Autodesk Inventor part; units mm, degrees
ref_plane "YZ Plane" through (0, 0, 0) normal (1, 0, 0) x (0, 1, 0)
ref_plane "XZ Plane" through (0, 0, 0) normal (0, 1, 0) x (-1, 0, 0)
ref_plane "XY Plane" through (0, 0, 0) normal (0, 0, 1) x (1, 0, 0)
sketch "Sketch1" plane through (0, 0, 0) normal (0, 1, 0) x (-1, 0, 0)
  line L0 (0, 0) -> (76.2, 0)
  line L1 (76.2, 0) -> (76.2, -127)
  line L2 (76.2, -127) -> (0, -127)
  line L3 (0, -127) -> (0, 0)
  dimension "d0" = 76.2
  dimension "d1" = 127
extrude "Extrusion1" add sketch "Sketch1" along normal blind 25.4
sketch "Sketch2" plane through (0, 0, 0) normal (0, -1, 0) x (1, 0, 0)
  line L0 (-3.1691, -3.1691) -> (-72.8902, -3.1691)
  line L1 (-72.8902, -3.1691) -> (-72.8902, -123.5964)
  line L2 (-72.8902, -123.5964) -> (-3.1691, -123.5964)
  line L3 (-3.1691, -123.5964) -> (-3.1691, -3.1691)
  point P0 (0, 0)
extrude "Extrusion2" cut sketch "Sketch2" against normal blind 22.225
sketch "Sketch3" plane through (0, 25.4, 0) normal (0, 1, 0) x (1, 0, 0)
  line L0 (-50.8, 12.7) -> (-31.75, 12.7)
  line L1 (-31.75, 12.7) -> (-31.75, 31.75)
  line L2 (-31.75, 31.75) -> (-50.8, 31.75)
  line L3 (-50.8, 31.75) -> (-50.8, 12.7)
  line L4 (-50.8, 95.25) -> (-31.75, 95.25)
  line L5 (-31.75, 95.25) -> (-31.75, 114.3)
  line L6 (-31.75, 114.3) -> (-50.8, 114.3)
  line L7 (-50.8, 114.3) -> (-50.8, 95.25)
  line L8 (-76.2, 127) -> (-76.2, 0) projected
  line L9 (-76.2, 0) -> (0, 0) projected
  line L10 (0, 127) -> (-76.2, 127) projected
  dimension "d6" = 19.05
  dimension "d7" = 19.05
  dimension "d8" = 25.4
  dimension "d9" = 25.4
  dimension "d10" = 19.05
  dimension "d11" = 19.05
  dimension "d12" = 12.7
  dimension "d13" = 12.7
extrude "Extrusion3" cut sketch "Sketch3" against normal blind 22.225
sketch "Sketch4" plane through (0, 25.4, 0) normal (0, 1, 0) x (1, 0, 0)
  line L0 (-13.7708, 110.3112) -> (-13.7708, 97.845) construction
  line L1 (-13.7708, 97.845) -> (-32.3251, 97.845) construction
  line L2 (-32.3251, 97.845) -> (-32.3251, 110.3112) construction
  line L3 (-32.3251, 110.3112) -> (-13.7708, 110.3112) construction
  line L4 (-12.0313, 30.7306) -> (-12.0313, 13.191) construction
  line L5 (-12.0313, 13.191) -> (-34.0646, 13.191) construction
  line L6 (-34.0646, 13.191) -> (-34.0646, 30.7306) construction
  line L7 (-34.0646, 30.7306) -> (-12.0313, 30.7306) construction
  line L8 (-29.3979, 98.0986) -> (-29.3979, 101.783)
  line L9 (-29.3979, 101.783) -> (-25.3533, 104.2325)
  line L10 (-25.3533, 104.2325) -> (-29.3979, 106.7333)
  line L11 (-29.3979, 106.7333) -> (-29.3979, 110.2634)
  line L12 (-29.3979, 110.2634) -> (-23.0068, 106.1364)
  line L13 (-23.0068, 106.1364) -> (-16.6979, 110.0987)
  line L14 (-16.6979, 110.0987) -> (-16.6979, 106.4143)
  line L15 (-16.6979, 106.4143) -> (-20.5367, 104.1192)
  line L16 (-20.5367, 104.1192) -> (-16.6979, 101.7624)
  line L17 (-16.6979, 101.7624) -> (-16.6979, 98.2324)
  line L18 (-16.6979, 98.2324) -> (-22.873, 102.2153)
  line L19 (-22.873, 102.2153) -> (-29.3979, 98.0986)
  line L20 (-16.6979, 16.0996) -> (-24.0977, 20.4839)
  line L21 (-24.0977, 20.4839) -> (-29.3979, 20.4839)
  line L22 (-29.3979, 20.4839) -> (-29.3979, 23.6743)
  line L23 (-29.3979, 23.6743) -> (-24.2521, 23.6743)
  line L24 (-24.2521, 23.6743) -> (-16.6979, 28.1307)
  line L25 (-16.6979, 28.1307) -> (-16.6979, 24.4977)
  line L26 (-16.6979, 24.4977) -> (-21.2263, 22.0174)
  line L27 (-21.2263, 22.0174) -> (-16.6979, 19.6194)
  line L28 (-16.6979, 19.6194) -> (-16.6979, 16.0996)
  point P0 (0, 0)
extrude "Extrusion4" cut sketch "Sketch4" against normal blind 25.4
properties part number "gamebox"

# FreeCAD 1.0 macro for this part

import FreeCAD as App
import Part
import Sketcher
Q = App.Units.Quantity


def add_polygon(sketch, points):
    """Adds a closed chain of lines whose ends are joined by coincident constraints."""
    first, n = sketch.GeometryCount, len(points)
    for a, b in zip(points, points[1:] + points[:1]):
        sketch.addGeometry(Part.LineSegment(App.Vector(*a, 0), App.Vector(*b, 0)), False)
    for i in range(n):
        sketch.addConstraint(Sketcher.Constraint("Coincident", first + i, 2, first + (i + 1) % n, 1))

doc = App.newDocument("Part")
body = doc.addObject("PartDesign::Body", "Body")

# Sketch on XZ plane
sketch1 = body.newObject("Sketcher::SketchObject", "Sketch")
sketch1.AttachmentSupport = (doc.getObject("XZ_Plane"), [""])
sketch1.MapMode = "FlatFace"
add_polygon(sketch1, [(-76, 0), (0, 0), (0, -127), (-76, -127)])  # lines 0-3
sketch1.addConstraint([
    Sketcher.Constraint("Horizontal", 0),
    Sketcher.Constraint("Vertical", 1),
    Sketcher.Constraint("Horizontal", 2),
    Sketcher.Constraint("Vertical", 3),
    Sketcher.Constraint("Coincident", 0, 2, -1, 1),
    Sketcher.Constraint("DistanceX", 0, 1, 0, 2, Q("3 in")),
    Sketcher.Constraint("DistanceY", 1, 2, 1, 1, Q("5 in")),
])
pad1 = body.newObject("PartDesign::Pad", "Pad")
pad1.Profile = sketch1
pad1.Length = Q("1 in")
pad1.Reversed = True

# Sketch on XZ plane
sketch2 = body.newObject("Sketcher::SketchObject", "Sketch001")
sketch2.AttachmentSupport = (doc.getObject("XZ_Plane"), [""])
sketch2.MapMode = "FlatFace"
add_polygon(sketch2, [(-3, -124), (-3, -3), (-73, -3), (-73, -124)])  # lines 0-3
sketch2.addConstraint([
    Sketcher.Constraint("Vertical", 0),
    Sketcher.Constraint("Horizontal", 1),
    Sketcher.Constraint("Vertical", 2),
    Sketcher.Constraint("Horizontal", 3),
    Sketcher.Constraint("DistanceY", 2, 2, -1, 1, Q("4.866 in")),
    Sketcher.Constraint("DistanceX", 1, 2, 1, 1, 69.721),
    Sketcher.Constraint("DistanceY", 0, 1, 0, 2, 120.4273),
    Sketcher.Constraint("DistanceX", 1, 2, -1, 1, Q("2.8697 in")),
])
pocket1 = body.newObject("PartDesign::Pocket", "Pocket")
pocket1.Profile = sketch2
pocket1.Length = Q("0.875 in")

# Sketch on XZ plane
sketch3 = body.newObject("Sketcher::SketchObject", "Sketch002")
sketch3.AttachmentSupport = (doc.getObject("XZ_Plane"), [""])
sketch3.MapMode = "FlatFace"
sketch3.AttachmentOffset = App.Placement(App.Vector(0, 0, -1 * 25.4), App.Rotation())
add_polygon(sketch3, [(-51, -32), (-51, -13), (-32, -13), (-32, -32)])  # lines 0-3
add_polygon(sketch3, [(-51, -114), (-51, -95), (-32, -95), (-32, -114)])  # lines 4-7
sketch3.addConstraint([
    Sketcher.Constraint("Vertical", 0),
    Sketcher.Constraint("Horizontal", 1),
    Sketcher.Constraint("Vertical", 2),
    Sketcher.Constraint("Horizontal", 3),
    Sketcher.Constraint("Vertical", 4),
    Sketcher.Constraint("Horizontal", 5),
    Sketcher.Constraint("Vertical", 6),
    Sketcher.Constraint("Horizontal", 7),
    Sketcher.Constraint("Vertical", 3, 2, 4, 2),
    Sketcher.Constraint("Vertical", 2, 2, 5, 2),
    Sketcher.Constraint("Equal", 7, 0),
    Sketcher.Constraint("Equal", 2, 4),
    Sketcher.Constraint("DistanceX", 1, 1, 1, 2, Q("0.75 in")),
    Sketcher.Constraint("DistanceY", 0, 2, -1, 1, Q("0.5 in")),
    Sketcher.Constraint("DistanceX", 0, 2, -1, 1, Q("2 in")),
    Sketcher.Constraint("DistanceY", 6, 2, 1, 2, Q("4 in")),
])
pocket2 = body.newObject("PartDesign::Pocket", "Pocket001")
pocket2.Profile = sketch3
pocket2.Length = Q("0.875 in")
pocket2.Reversed = True

# Sketch on XZ plane
sketch4 = body.newObject("Sketcher::SketchObject", "Sketch003")
sketch4.AttachmentSupport = (doc.getObject("XZ_Plane"), [""])
sketch4.MapMode = "FlatFace"
sketch4.AttachmentOffset = App.Placement(App.Vector(0, 0, -1 * 25.4), App.Rotation())
add_polygon(sketch4, [(-29.4, -101.8), (-29.4, -98.1), (-22.9, -102.2), (-16.7, -98.2), (-16.7, -101.8), (-20.5, -104.1), (-16.7, -106.4), (-16.7, -110.1), (-23, -106.1), (-29.4, -110.3), (-29.4, -106.7), (-25.4, -104.2)])  # lines 0-11
add_polygon(sketch4, [(-24.1, -20.5), (-16.7, -16.1), (-16.7, -19.6), (-21.2, -22), (-16.7, -24.5), (-16.7, -28.1), (-24.3, -23.7), (-29.4, -23.7), (-29.4, -20.5)])  # lines 12-20
sketch4.addConstraint([
    Sketcher.Constraint("Vertical", 0),
    Sketcher.Constraint("Vertical", 3),
    Sketcher.Constraint("Vertical", 6),
    Sketcher.Constraint("Vertical", 9),
    Sketcher.Constraint("Vertical", 13),
    Sketcher.Constraint("Vertical", 16),
    Sketcher.Constraint("Horizontal", 18),
    Sketcher.Constraint("Vertical", 19),
    Sketcher.Constraint("Horizontal", 20),
    Sketcher.Constraint("Vertical", 3, 2, 5, 2),
    Sketcher.Constraint("Vertical", 0, 2, 8, 2),
    Sketcher.Constraint("Vertical", 6, 2, 12, 2),
    Sketcher.Constraint("Vertical", 13, 2, 15, 2),
    Sketcher.Constraint("Vertical", 11, 2, 18, 2),
    Sketcher.Constraint("Equal", 0, 6),
    Sketcher.Constraint("Equal", 3, 9),
    Sketcher.Constraint("Angle", 11, Q("148.8 deg")),
    Sketcher.Constraint("DistanceX", 0, 2, 2, 2, Q("0.5 in")),
    Sketcher.Constraint("Angle", 7, Q("147.8692 deg")),
    Sketcher.Constraint("Angle", 15, Q("-28.7104 deg")),
    Sketcher.Constraint("DistanceX", 18, 2, 18, 1, Q("0.2026 in")),
    Sketcher.Constraint("DistanceY", 19, 1, 19, 2, Q("0.1256 in")),
    Sketcher.Constraint("DistanceY", 6, 2, 7, 2, Q("0.156 in")),
    Sketcher.Constraint("DistanceY", 2, 2, 13, 2, Q("3.095 in")),
    Sketcher.Constraint("Distance", 2, Q("0.2893 in")),
    Sketcher.Constraint("Distance", 17, Q("0.3453 in")),
    Sketcher.Constraint("DistanceX", 20, 1, 20, 2, 5.3002),
    Sketcher.Constraint("DistanceY", 0, 1, 0, 2, 3.6844),
    Sketcher.Constraint("DistanceY", 3, 2, 3, 1, 3.53),
    Sketcher.Constraint("DistanceY", 13, 2, 13, 1, 3.5198),
    Sketcher.Constraint("DistanceY", 16, 2, 16, 1, 3.633),
    Sketcher.Constraint("DistanceX", 0, 2, -1, 1, Q("1.1574 in")),
    Sketcher.Constraint("DistanceX", 1, 2, -1, 1, Q("0.9005 in")),
    Sketcher.Constraint("DistanceY", 3, 2, -1, 1, Q("4.0064 in")),
    Sketcher.Constraint("DistanceY", 6, 2, -1, 1, Q("4.3346 in")),
    Sketcher.Constraint("DistanceY", 9, 2, -1, 1, Q("4.2021 in")),
    Sketcher.Constraint("DistanceY", 11, 2, -1, 1, Q("4.0072 in")),
    Sketcher.Constraint("DistanceY", 16, 2, -1, 1, Q("1.1075 in")),
    Sketcher.Constraint("DistanceY", 8, 2, 4, 2, Q("0.2419 in")),
    Sketcher.Constraint("DistanceY", 14, 2, 13, 2, Q("0.0944 in")),
    Sketcher.Constraint("Distance", 4, 4.5045),
    Sketcher.Constraint("Distance", 10, 4.7553),
])
pocket3 = body.newObject("PartDesign::Pocket", "Pocket002")
pocket3.Profile = sketch4
pocket3.Length = Q("1 in")
pocket3.Reversed = True

doc.recompute()
